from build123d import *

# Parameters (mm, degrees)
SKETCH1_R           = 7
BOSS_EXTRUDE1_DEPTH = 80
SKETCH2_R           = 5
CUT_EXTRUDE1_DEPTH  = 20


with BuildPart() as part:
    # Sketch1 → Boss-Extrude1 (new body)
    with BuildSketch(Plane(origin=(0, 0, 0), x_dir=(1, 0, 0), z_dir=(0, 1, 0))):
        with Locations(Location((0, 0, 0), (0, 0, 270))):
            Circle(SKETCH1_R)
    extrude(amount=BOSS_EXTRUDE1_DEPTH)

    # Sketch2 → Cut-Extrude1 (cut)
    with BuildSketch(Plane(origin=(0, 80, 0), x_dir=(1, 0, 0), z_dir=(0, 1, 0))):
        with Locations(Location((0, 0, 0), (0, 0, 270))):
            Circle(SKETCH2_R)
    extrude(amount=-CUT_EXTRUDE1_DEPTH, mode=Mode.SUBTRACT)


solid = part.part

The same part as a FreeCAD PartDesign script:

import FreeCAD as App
import Part
import Sketcher

doc = App.newDocument("Part")
params = doc.addObject("Spreadsheet::Sheet", "Params")
for row, (alias, value) in enumerate([
    ("sketch1_diameter", "14 mm"),
    ("pad1_length", "80 mm"),
    ("sketch2_diameter", "10 mm"),
    ("pocket1_length", "20 mm"),
], start=1):
    params.set(f"A{row}", alias)
    params.set(f"B{row}", "=" + value)
    params.setAlias(f"B{row}", alias)

body = doc.addObject("PartDesign::Body", "Body")

sketch1 = doc.addObject("Sketcher::SketchObject", "Sketch")
body.addObject(sketch1)
sketch1.AttachmentSupport = (doc.XZ_Plane, [""])
sketch1.MapMode = "FlatFace"
sketch1.addGeometry(Part.Circle(App.Vector(0, 0, 0), App.Vector(0, 0, 1), 7), False)
sketch1.addConstraint([
    Sketcher.Constraint("Coincident", 0, 3, -1, 1),
    Sketcher.Constraint("Diameter", 0, 14.0),
])
sketch1.setExpression("Constraints[1]", "Params.sketch1_diameter")
pad1 = doc.addObject("PartDesign::Pad", "Pad")
body.addObject(pad1)
pad1.Profile = sketch1
pad1.setExpression("Length", "Params.pad1_length")
pad1.Reversed = True

sketch2 = doc.addObject("Sketcher::SketchObject", "Sketch001")
body.addObject(sketch2)
sketch2.AttachmentSupport = (doc.XZ_Plane, [""])
sketch2.MapMode = "FlatFace"
sketch2.AttachmentOffset = App.Placement(App.Vector(0, 0, -80), App.Rotation())
sketch2.addGeometry(Part.Circle(App.Vector(0, 0, 0), App.Vector(0, 0, 1), 5), False)
sketch2.addConstraint([
    Sketcher.Constraint("Coincident", 0, 3, -1, 1),
    Sketcher.Constraint("Diameter", 0, 10.0),
])
sketch2.setExpression("Constraints[1]", "Params.sketch2_diameter")
pocket1 = doc.addObject("PartDesign::Pocket", "Pocket")
body.addObject(pocket1)
pocket1.Profile = sketch2
pocket1.setExpression("Length", "Params.pocket1_length")
pocket1.Reversed = True

doc.recompute()
